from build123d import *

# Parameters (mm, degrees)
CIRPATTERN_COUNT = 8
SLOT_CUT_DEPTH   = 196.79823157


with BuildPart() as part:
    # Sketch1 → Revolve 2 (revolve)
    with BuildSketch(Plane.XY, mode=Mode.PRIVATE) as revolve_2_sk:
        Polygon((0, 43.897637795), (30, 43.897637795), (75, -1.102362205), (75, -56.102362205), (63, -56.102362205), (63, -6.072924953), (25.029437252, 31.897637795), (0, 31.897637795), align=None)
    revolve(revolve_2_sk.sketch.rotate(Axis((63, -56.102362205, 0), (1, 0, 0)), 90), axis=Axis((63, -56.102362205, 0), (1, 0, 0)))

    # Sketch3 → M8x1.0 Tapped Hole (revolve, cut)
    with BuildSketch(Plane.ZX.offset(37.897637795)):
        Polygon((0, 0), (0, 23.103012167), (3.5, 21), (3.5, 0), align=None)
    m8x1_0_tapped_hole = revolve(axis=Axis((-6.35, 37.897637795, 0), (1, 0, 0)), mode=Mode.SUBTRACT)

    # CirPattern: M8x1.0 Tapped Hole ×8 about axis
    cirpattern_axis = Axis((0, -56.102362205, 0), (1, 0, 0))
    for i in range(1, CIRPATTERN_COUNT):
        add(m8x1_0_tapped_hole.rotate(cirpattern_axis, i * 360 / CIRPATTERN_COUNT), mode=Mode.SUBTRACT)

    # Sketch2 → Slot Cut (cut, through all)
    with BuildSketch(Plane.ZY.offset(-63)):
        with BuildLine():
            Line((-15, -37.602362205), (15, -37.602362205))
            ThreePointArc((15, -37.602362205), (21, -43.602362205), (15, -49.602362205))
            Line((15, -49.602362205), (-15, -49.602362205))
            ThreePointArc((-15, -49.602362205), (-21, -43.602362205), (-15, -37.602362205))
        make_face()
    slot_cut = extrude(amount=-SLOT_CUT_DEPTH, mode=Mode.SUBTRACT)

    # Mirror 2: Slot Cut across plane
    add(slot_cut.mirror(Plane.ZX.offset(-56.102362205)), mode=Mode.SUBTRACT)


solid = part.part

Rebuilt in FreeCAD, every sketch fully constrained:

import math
import FreeCAD as App
import Part
import Sketcher
Q = App.Units.Quantity

doc = App.newDocument("Part")
body = doc.addObject("PartDesign::Body", "Body")

# Sketch on XY plane
sketch1 = doc.addObject("Sketcher::SketchObject", "Sketch")
body.addObject(sketch1)
sketch1.AttachmentSupport = (doc.XY_Plane, [""])
sketch1.MapMode = "FlatFace"
sketch1.addGeometry([
    Part.LineSegment(App.Vector(30, 44, 0), App.Vector(0, 44, 0)),  # 0
    Part.LineSegment(App.Vector(0, 44, 0), App.Vector(0, 32, 0)),  # 1
    Part.LineSegment(App.Vector(0, 32, 0), App.Vector(25, 32, 0)),  # 2
    Part.LineSegment(App.Vector(25, 32, 0), App.Vector(63, -6, 0)),  # 3
    Part.LineSegment(App.Vector(63, -6, 0), App.Vector(63, -56, 0)),  # 4
    Part.LineSegment(App.Vector(63, -56, 0), App.Vector(75, -56, 0)),  # 5
    Part.LineSegment(App.Vector(75, -56, 0), App.Vector(75, -1, 0)),  # 6
    Part.LineSegment(App.Vector(75, -1, 0), App.Vector(30, 44, 0)),  # 7
], False)
sketch1.addGeometry(Part.LineSegment(App.Vector(0, -56, 0), App.Vector(75, -56, 0)), True)  # axis
sketch1.addConstraint([
    Sketcher.Constraint("Coincident", 0, 2, 1, 1),
    Sketcher.Constraint("Coincident", 1, 2, 2, 1),
    Sketcher.Constraint("Coincident", 2, 2, 3, 1),
    Sketcher.Constraint("Coincident", 3, 2, 4, 1),
    Sketcher.Constraint("Coincident", 4, 2, 5, 1),
    Sketcher.Constraint("Coincident", 5, 2, 6, 1),
    Sketcher.Constraint("Coincident", 6, 2, 7, 1),
    Sketcher.Constraint("Coincident", 7, 2, 0, 1),
    Sketcher.Constraint("Horizontal", 0),
    Sketcher.Constraint("Vertical", 1),
    Sketcher.Constraint("Horizontal", 2),
    Sketcher.Constraint("Vertical", 4),
    Sketcher.Constraint("Horizontal", 5),
    Sketcher.Constraint("Vertical", 6),
    Sketcher.Constraint("Horizontal", 8),
    Sketcher.Constraint("Coincident", 8, 2, 5, 2),
    Sketcher.Constraint("PointOnObject", 0, 2, -2),
    Sketcher.Constraint("PointOnObject", 8, 1, -2),
    Sketcher.Constraint("Parallel", 3, 7),
    Sketcher.Constraint("Equal", 5, 1),
    Sketcher.Constraint("DistanceX", 0, 2, 0, 1, 30.0),
    Sketcher.Constraint("DistanceX", 5, 1, 5, 2, 12.0),
    Sketcher.Constraint("DistanceX", 8, 1, 8, 2, 75.0),
    Sketcher.Constraint("DistanceY", 6, 1, 6, 2, 55.0),
    Sketcher.Constraint("Angle", 3, Q("-45 deg")),
    Sketcher.Constraint("DistanceX", 2, 1, 2, 2, 25.029437),
    Sketcher.Constraint("DistanceY", -1, 1, 0, 2, 43.897638),
])
revolution = doc.addObject("PartDesign::Revolution", "Revolution")
body.addObject(revolution)
revolution.Profile = sketch1
revolution.ReferenceAxis = (sketch1, ["Axis0"])
revolution.Angle = 360

# Sketch on XZ plane
sketch2 = doc.addObject("Sketcher::SketchObject", "Sketch001")
body.addObject(sketch2)
sketch2.AttachmentSupport = (doc.XZ_Plane, [""])
sketch2.MapMode = "FlatFace"
sketch2.AttachmentOffset = App.Placement(App.Vector(0, 0, -37.897638), App.Rotation())
sketch2.addGeometry([
    Part.LineSegment(App.Vector(23.1, 0, 0), App.Vector(0, 0, 0)),
    Part.LineSegment(App.Vector(0, 0, 0), App.Vector(0, 3.5, 0)),
    Part.LineSegment(App.Vector(0, 3.5, 0), App.Vector(21, 3.5, 0)),
    Part.LineSegment(App.Vector(21, 3.5, 0), App.Vector(23.1, 0, 0)),
], False)
sketch2.addConstraint([
    Sketcher.Constraint("Coincident", 0, 2, 1, 1),
    Sketcher.Constraint("Coincident", 1, 2, 2, 1),
    Sketcher.Constraint("Coincident", 2, 2, 3, 1),
    Sketcher.Constraint("Coincident", 3, 2, 0, 1),
    Sketcher.Constraint("Horizontal", 0),
    Sketcher.Constraint("Vertical", 1),
    Sketcher.Constraint("Horizontal", 2),
    Sketcher.Constraint("Coincident", 0, 2, -1, 1),
    Sketcher.Constraint("DistanceX", 2, 1, 2, 2, 21.0),
    Sketcher.Constraint("Angle", 3, Q("-59 deg")),
    Sketcher.Constraint("DistanceY", 1, 1, 1, 2, 3.5),
])
groove = doc.addObject("PartDesign::Groove", "Groove")
body.addObject(groove)
groove.Profile = sketch2
groove.ReferenceAxis = (sketch2, ["H_Axis"])
groove.Angle = 360
doc.recompute()

datumline = doc.addObject("PartDesign::Line", "DatumLine")
body.addObject(datumline)
datumline.Placement = App.Placement(App.Vector(0, -56.102362, 0), App.Rotation(App.Vector(0, 0, 1), App.Vector(1, 0, 0)))
polarpattern = doc.addObject("PartDesign::PolarPattern", "PolarPattern")
body.addObject(polarpattern)
polarpattern.Originals = [groove]
polarpattern.Axis = (datumline, [""])
polarpattern.Angle = 360
polarpattern.Occurrences = 8
body.Tip = polarpattern

# Sketch on YZ plane
sketch3 = doc.addObject("Sketcher::SketchObject", "Sketch002")
body.addObject(sketch3)
sketch3.AttachmentSupport = (doc.YZ_Plane, [""])
sketch3.MapMode = "FlatFace"
sketch3.AttachmentOffset = App.Placement(App.Vector(0, 0, 63), App.Rotation())
sketch3.addGeometry([
    Part.LineSegment(App.Vector(-38, 15, 0), App.Vector(-38, -15, 0)),
    Part.ArcOfCircle(Part.Circle(App.Vector(-44, -15, 0), App.Vector(0, 0, 1), 6), math.radians(180), math.radians(360)),
    Part.LineSegment(App.Vector(-50, -15, 0), App.Vector(-50, 15, 0)),
    Part.ArcOfCircle(Part.Circle(App.Vector(-44, 15, 0), App.Vector(0, 0, 1), 6), math.radians(0), math.radians(180)),
], False)
sketch3.addConstraint([
    Sketcher.Constraint("Tangent", 0, 2, 1, 2),
    Sketcher.Constraint("Tangent", 1, 1, 2, 1),
    Sketcher.Constraint("Tangent", 2, 2, 3, 2),
    Sketcher.Constraint("Tangent", 3, 1, 0, 1),
    Sketcher.Constraint("Vertical", 0),
    Sketcher.Constraint("Vertical", 2),
    Sketcher.Constraint("Radius", 1, 6.0),
    Sketcher.Constraint("DistanceY", 0, 2, 0, 1, 30.0),
    Sketcher.Constraint("DistanceY", 1, 3, -1, 1, 15.0),
    Sketcher.Constraint("DistanceX", 1, 3, -1, 1, 43.602362),
])
pocket1 = doc.addObject("PartDesign::Pocket", "Pocket")
body.addObject(pocket1)
pocket1.Profile = sketch3
pocket1.Type = "ThroughAll"
pocket1.Reversed = True
doc.recompute()

datumplane = doc.addObject("PartDesign::Plane", "DatumPlane")
body.addObject(datumplane)
datumplane.AttachmentSupport = (doc.XZ_Plane, [""])
datumplane.MapMode = "FlatFace"
datumplane.AttachmentOffset = App.Placement(App.Vector(0, 0, 56.102362), App.Rotation())
mirrored = doc.addObject("PartDesign::Mirrored", "Mirrored")
body.addObject(mirrored)
mirrored.Originals = [pocket1]
mirrored.MirrorPlane = (datumplane, [""])
body.Tip = mirrored

doc.recompute()
